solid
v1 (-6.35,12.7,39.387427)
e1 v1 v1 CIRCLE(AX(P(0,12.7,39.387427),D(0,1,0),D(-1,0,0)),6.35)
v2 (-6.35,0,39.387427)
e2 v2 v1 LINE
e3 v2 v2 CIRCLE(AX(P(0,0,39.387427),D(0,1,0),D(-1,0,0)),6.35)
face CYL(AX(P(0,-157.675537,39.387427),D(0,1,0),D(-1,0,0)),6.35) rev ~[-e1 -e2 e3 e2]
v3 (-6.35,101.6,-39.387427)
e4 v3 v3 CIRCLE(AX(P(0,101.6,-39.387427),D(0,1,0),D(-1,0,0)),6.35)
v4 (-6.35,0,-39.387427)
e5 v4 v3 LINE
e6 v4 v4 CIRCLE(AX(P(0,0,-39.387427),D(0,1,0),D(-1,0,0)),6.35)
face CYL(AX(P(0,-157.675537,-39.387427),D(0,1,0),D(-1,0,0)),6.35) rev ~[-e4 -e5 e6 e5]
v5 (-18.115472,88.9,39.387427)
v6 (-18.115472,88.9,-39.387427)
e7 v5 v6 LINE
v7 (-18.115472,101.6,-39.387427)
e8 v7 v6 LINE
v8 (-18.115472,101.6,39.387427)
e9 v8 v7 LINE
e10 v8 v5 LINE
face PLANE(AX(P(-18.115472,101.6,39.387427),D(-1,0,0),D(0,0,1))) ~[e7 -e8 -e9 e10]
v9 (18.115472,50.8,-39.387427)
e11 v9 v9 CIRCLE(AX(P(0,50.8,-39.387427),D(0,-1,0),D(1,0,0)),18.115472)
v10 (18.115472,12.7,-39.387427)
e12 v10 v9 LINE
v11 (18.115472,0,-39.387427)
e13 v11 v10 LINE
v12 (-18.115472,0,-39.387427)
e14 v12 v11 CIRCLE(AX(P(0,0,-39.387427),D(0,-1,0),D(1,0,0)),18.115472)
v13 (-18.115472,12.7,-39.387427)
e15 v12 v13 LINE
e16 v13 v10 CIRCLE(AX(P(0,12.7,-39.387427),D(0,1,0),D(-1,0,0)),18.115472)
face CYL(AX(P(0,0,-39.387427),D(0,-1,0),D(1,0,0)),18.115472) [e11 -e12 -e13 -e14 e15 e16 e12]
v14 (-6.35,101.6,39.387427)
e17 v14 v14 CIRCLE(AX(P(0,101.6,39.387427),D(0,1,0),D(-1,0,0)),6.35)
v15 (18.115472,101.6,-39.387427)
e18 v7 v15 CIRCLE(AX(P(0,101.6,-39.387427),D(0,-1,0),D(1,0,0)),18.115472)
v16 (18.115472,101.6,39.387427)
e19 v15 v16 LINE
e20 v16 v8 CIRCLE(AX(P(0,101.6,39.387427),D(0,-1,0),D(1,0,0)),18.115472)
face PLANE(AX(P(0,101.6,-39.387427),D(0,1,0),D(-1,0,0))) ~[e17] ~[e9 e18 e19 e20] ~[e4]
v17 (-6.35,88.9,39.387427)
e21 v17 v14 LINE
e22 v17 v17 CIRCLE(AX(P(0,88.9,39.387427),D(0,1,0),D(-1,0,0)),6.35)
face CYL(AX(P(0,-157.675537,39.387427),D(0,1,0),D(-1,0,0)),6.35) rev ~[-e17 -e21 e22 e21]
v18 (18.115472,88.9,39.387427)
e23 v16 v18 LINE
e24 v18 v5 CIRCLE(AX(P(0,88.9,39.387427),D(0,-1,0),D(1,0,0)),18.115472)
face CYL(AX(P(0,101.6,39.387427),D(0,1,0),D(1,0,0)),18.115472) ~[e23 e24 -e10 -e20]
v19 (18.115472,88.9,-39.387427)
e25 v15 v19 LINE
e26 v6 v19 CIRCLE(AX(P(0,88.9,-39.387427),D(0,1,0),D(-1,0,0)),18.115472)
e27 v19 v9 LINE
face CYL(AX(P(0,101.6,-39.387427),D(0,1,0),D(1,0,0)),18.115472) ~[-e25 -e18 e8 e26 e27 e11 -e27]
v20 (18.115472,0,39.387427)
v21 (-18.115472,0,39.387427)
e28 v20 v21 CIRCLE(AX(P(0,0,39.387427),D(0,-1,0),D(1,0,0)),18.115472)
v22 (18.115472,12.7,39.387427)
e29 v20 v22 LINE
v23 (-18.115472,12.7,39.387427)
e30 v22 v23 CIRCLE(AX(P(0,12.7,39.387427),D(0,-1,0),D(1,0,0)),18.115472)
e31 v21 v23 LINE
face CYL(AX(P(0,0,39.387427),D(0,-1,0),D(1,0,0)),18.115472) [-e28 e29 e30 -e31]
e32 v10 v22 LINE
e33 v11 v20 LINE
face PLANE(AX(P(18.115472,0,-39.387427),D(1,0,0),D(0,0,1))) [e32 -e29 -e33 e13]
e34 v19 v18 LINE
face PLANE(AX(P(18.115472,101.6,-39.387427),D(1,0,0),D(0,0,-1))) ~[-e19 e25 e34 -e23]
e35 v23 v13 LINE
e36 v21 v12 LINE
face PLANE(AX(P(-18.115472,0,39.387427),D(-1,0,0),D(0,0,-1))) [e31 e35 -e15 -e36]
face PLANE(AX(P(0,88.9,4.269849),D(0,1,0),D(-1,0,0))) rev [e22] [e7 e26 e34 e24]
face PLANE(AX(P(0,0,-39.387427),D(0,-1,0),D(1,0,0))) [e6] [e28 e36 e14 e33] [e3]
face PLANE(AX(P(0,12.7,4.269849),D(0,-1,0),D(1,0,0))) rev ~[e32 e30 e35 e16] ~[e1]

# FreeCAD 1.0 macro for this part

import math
import FreeCAD as App
import Part
import Sketcher

V = App.Vector
Q = App.Units.Quantity

doc = App.newDocument("Part")
body = doc.addObject("PartDesign::Body", "Body")

# Sketch on XZ plane
sketch1 = doc.addObject("Sketcher::SketchObject", "Sketch")
body.addObject(sketch1)
sketch1.AttachmentSupport = (doc.XZ_Plane, [""])
sketch1.MapMode = "FlatFace"
sketch1.addGeometry([
    Part.ArcOfCircle(Part.Circle(V(0, 39, 0), V(0, 0, 1), 18), math.radians(0), math.radians(180)),
    Part.LineSegment(V(-18, 39, 0), V(-18, -39, 0)),
    Part.ArcOfCircle(Part.Circle(V(0, -39, 0), V(0, 0, 1), 18), math.radians(0), math.radians(180)),
    Part.LineSegment(V(18, -39, 0), V(18, 39, 0)),
], False)
sketch1.addConstraint([
    Sketcher.Constraint("Tangent", 0, 2, 1, 1),
    Sketcher.Constraint("Tangent", 1, 2, 2, 2),
    Sketcher.Constraint("Tangent", 2, 1, 3, 1),
    Sketcher.Constraint("Tangent", 3, 2, 0, 1),
    Sketcher.Constraint("Vertical", 1),
    Sketcher.Constraint("Vertical", 3),
    Sketcher.Constraint("Symmetric", 0, 3, 2, 3, -1, 1),
    Sketcher.Constraint("Radius", 0, Q("18.115472 mm")),
    Sketcher.Constraint("DistanceY", 1, 2, 1, 1, Q("78.774854 mm")),
])
pad1 = doc.addObject("PartDesign::Pad", "Pad")
body.addObject(pad1)
pad1.Profile = sketch1
pad1.Length = Q("0.5 in")
pad1.Reversed = True

# Sketch on XZ plane
sketch2 = doc.addObject("Sketcher::SketchObject", "Sketch001")
body.addObject(sketch2)
sketch2.AttachmentSupport = (doc.XZ_Plane, [""])
sketch2.MapMode = "FlatFace"
sketch2.addGeometry(Part.Circle(V(0, -39, 0), V(0, 0, 1), 18), False)
sketch2.addConstraint([
    Sketcher.Constraint("PointOnObject", 0, 3, -2),
    Sketcher.Constraint("Diameter", 0, Q("36.230944 mm")),
    Sketcher.Constraint("DistanceY", 0, 3, -1, 1, Q("39.387427 mm")),
])
pad2 = doc.addObject("PartDesign::Pad", "Pad001")
body.addObject(pad2)
pad2.Profile = sketch2
pad2.Length = Q("2 in")
pad2.Reversed = True
body2 = doc.addObject("PartDesign::Body", "Body001")
doc.recompute()

body2.BaseFeature = body
doc.recompute()

mirroring = doc.addObject("Part::Mirroring", "Mirroring")
mirroring.Source = body
mirroring.Base = V(0, 50.8, 0)
mirroring.Normal = V(0, -1, 0)
body3 = doc.addObject("PartDesign::Body", "Body002")
body3.BaseFeature = mirroring
boolean = doc.addObject("PartDesign::Boolean", "Boolean")
body2.addObject(boolean)
boolean.Type = "Fuse"
boolean.addObjects([body3])
doc.recompute()

# Sketch on XZ plane
sketch3 = doc.addObject("Sketcher::SketchObject", "Sketch002")
body2.addObject(sketch3)
sketch3.AttachmentSupport = (doc.getObject("XZ_Plane001"), [""])
sketch3.MapMode = "FlatFace"
sketch3.addGeometry([
    Part.Circle(V(0, -39, 0), V(0, 0, 1), 6),
    Part.Circle(V(0, 39, 0), V(0, 0, 1), 6),
], False)
sketch3.addConstraint([
    Sketcher.Constraint("Equal", 0, 1),
    Sketcher.Constraint("Symmetric", 0, 3, 1, 3, -1, 1),
    Sketcher.Constraint("PointOnObject", 0, 3, -2),
    Sketcher.Constraint("Diameter", 0, Q("0.5 in")),
    Sketcher.Constraint("DistanceY", 0, 3, -1, 1, Q("39.387427 mm")),
])
doc.recompute()
hole = doc.addObject("PartDesign::Hole", "Hole")
body2.addObject(hole)
hole.Profile = sketch3
hole.ThreadType = "None"
hole.Diameter = Q("0.5 in")
hole.DepthType = "ThroughAll"
mirroring.Visibility = False

doc.recompute()
